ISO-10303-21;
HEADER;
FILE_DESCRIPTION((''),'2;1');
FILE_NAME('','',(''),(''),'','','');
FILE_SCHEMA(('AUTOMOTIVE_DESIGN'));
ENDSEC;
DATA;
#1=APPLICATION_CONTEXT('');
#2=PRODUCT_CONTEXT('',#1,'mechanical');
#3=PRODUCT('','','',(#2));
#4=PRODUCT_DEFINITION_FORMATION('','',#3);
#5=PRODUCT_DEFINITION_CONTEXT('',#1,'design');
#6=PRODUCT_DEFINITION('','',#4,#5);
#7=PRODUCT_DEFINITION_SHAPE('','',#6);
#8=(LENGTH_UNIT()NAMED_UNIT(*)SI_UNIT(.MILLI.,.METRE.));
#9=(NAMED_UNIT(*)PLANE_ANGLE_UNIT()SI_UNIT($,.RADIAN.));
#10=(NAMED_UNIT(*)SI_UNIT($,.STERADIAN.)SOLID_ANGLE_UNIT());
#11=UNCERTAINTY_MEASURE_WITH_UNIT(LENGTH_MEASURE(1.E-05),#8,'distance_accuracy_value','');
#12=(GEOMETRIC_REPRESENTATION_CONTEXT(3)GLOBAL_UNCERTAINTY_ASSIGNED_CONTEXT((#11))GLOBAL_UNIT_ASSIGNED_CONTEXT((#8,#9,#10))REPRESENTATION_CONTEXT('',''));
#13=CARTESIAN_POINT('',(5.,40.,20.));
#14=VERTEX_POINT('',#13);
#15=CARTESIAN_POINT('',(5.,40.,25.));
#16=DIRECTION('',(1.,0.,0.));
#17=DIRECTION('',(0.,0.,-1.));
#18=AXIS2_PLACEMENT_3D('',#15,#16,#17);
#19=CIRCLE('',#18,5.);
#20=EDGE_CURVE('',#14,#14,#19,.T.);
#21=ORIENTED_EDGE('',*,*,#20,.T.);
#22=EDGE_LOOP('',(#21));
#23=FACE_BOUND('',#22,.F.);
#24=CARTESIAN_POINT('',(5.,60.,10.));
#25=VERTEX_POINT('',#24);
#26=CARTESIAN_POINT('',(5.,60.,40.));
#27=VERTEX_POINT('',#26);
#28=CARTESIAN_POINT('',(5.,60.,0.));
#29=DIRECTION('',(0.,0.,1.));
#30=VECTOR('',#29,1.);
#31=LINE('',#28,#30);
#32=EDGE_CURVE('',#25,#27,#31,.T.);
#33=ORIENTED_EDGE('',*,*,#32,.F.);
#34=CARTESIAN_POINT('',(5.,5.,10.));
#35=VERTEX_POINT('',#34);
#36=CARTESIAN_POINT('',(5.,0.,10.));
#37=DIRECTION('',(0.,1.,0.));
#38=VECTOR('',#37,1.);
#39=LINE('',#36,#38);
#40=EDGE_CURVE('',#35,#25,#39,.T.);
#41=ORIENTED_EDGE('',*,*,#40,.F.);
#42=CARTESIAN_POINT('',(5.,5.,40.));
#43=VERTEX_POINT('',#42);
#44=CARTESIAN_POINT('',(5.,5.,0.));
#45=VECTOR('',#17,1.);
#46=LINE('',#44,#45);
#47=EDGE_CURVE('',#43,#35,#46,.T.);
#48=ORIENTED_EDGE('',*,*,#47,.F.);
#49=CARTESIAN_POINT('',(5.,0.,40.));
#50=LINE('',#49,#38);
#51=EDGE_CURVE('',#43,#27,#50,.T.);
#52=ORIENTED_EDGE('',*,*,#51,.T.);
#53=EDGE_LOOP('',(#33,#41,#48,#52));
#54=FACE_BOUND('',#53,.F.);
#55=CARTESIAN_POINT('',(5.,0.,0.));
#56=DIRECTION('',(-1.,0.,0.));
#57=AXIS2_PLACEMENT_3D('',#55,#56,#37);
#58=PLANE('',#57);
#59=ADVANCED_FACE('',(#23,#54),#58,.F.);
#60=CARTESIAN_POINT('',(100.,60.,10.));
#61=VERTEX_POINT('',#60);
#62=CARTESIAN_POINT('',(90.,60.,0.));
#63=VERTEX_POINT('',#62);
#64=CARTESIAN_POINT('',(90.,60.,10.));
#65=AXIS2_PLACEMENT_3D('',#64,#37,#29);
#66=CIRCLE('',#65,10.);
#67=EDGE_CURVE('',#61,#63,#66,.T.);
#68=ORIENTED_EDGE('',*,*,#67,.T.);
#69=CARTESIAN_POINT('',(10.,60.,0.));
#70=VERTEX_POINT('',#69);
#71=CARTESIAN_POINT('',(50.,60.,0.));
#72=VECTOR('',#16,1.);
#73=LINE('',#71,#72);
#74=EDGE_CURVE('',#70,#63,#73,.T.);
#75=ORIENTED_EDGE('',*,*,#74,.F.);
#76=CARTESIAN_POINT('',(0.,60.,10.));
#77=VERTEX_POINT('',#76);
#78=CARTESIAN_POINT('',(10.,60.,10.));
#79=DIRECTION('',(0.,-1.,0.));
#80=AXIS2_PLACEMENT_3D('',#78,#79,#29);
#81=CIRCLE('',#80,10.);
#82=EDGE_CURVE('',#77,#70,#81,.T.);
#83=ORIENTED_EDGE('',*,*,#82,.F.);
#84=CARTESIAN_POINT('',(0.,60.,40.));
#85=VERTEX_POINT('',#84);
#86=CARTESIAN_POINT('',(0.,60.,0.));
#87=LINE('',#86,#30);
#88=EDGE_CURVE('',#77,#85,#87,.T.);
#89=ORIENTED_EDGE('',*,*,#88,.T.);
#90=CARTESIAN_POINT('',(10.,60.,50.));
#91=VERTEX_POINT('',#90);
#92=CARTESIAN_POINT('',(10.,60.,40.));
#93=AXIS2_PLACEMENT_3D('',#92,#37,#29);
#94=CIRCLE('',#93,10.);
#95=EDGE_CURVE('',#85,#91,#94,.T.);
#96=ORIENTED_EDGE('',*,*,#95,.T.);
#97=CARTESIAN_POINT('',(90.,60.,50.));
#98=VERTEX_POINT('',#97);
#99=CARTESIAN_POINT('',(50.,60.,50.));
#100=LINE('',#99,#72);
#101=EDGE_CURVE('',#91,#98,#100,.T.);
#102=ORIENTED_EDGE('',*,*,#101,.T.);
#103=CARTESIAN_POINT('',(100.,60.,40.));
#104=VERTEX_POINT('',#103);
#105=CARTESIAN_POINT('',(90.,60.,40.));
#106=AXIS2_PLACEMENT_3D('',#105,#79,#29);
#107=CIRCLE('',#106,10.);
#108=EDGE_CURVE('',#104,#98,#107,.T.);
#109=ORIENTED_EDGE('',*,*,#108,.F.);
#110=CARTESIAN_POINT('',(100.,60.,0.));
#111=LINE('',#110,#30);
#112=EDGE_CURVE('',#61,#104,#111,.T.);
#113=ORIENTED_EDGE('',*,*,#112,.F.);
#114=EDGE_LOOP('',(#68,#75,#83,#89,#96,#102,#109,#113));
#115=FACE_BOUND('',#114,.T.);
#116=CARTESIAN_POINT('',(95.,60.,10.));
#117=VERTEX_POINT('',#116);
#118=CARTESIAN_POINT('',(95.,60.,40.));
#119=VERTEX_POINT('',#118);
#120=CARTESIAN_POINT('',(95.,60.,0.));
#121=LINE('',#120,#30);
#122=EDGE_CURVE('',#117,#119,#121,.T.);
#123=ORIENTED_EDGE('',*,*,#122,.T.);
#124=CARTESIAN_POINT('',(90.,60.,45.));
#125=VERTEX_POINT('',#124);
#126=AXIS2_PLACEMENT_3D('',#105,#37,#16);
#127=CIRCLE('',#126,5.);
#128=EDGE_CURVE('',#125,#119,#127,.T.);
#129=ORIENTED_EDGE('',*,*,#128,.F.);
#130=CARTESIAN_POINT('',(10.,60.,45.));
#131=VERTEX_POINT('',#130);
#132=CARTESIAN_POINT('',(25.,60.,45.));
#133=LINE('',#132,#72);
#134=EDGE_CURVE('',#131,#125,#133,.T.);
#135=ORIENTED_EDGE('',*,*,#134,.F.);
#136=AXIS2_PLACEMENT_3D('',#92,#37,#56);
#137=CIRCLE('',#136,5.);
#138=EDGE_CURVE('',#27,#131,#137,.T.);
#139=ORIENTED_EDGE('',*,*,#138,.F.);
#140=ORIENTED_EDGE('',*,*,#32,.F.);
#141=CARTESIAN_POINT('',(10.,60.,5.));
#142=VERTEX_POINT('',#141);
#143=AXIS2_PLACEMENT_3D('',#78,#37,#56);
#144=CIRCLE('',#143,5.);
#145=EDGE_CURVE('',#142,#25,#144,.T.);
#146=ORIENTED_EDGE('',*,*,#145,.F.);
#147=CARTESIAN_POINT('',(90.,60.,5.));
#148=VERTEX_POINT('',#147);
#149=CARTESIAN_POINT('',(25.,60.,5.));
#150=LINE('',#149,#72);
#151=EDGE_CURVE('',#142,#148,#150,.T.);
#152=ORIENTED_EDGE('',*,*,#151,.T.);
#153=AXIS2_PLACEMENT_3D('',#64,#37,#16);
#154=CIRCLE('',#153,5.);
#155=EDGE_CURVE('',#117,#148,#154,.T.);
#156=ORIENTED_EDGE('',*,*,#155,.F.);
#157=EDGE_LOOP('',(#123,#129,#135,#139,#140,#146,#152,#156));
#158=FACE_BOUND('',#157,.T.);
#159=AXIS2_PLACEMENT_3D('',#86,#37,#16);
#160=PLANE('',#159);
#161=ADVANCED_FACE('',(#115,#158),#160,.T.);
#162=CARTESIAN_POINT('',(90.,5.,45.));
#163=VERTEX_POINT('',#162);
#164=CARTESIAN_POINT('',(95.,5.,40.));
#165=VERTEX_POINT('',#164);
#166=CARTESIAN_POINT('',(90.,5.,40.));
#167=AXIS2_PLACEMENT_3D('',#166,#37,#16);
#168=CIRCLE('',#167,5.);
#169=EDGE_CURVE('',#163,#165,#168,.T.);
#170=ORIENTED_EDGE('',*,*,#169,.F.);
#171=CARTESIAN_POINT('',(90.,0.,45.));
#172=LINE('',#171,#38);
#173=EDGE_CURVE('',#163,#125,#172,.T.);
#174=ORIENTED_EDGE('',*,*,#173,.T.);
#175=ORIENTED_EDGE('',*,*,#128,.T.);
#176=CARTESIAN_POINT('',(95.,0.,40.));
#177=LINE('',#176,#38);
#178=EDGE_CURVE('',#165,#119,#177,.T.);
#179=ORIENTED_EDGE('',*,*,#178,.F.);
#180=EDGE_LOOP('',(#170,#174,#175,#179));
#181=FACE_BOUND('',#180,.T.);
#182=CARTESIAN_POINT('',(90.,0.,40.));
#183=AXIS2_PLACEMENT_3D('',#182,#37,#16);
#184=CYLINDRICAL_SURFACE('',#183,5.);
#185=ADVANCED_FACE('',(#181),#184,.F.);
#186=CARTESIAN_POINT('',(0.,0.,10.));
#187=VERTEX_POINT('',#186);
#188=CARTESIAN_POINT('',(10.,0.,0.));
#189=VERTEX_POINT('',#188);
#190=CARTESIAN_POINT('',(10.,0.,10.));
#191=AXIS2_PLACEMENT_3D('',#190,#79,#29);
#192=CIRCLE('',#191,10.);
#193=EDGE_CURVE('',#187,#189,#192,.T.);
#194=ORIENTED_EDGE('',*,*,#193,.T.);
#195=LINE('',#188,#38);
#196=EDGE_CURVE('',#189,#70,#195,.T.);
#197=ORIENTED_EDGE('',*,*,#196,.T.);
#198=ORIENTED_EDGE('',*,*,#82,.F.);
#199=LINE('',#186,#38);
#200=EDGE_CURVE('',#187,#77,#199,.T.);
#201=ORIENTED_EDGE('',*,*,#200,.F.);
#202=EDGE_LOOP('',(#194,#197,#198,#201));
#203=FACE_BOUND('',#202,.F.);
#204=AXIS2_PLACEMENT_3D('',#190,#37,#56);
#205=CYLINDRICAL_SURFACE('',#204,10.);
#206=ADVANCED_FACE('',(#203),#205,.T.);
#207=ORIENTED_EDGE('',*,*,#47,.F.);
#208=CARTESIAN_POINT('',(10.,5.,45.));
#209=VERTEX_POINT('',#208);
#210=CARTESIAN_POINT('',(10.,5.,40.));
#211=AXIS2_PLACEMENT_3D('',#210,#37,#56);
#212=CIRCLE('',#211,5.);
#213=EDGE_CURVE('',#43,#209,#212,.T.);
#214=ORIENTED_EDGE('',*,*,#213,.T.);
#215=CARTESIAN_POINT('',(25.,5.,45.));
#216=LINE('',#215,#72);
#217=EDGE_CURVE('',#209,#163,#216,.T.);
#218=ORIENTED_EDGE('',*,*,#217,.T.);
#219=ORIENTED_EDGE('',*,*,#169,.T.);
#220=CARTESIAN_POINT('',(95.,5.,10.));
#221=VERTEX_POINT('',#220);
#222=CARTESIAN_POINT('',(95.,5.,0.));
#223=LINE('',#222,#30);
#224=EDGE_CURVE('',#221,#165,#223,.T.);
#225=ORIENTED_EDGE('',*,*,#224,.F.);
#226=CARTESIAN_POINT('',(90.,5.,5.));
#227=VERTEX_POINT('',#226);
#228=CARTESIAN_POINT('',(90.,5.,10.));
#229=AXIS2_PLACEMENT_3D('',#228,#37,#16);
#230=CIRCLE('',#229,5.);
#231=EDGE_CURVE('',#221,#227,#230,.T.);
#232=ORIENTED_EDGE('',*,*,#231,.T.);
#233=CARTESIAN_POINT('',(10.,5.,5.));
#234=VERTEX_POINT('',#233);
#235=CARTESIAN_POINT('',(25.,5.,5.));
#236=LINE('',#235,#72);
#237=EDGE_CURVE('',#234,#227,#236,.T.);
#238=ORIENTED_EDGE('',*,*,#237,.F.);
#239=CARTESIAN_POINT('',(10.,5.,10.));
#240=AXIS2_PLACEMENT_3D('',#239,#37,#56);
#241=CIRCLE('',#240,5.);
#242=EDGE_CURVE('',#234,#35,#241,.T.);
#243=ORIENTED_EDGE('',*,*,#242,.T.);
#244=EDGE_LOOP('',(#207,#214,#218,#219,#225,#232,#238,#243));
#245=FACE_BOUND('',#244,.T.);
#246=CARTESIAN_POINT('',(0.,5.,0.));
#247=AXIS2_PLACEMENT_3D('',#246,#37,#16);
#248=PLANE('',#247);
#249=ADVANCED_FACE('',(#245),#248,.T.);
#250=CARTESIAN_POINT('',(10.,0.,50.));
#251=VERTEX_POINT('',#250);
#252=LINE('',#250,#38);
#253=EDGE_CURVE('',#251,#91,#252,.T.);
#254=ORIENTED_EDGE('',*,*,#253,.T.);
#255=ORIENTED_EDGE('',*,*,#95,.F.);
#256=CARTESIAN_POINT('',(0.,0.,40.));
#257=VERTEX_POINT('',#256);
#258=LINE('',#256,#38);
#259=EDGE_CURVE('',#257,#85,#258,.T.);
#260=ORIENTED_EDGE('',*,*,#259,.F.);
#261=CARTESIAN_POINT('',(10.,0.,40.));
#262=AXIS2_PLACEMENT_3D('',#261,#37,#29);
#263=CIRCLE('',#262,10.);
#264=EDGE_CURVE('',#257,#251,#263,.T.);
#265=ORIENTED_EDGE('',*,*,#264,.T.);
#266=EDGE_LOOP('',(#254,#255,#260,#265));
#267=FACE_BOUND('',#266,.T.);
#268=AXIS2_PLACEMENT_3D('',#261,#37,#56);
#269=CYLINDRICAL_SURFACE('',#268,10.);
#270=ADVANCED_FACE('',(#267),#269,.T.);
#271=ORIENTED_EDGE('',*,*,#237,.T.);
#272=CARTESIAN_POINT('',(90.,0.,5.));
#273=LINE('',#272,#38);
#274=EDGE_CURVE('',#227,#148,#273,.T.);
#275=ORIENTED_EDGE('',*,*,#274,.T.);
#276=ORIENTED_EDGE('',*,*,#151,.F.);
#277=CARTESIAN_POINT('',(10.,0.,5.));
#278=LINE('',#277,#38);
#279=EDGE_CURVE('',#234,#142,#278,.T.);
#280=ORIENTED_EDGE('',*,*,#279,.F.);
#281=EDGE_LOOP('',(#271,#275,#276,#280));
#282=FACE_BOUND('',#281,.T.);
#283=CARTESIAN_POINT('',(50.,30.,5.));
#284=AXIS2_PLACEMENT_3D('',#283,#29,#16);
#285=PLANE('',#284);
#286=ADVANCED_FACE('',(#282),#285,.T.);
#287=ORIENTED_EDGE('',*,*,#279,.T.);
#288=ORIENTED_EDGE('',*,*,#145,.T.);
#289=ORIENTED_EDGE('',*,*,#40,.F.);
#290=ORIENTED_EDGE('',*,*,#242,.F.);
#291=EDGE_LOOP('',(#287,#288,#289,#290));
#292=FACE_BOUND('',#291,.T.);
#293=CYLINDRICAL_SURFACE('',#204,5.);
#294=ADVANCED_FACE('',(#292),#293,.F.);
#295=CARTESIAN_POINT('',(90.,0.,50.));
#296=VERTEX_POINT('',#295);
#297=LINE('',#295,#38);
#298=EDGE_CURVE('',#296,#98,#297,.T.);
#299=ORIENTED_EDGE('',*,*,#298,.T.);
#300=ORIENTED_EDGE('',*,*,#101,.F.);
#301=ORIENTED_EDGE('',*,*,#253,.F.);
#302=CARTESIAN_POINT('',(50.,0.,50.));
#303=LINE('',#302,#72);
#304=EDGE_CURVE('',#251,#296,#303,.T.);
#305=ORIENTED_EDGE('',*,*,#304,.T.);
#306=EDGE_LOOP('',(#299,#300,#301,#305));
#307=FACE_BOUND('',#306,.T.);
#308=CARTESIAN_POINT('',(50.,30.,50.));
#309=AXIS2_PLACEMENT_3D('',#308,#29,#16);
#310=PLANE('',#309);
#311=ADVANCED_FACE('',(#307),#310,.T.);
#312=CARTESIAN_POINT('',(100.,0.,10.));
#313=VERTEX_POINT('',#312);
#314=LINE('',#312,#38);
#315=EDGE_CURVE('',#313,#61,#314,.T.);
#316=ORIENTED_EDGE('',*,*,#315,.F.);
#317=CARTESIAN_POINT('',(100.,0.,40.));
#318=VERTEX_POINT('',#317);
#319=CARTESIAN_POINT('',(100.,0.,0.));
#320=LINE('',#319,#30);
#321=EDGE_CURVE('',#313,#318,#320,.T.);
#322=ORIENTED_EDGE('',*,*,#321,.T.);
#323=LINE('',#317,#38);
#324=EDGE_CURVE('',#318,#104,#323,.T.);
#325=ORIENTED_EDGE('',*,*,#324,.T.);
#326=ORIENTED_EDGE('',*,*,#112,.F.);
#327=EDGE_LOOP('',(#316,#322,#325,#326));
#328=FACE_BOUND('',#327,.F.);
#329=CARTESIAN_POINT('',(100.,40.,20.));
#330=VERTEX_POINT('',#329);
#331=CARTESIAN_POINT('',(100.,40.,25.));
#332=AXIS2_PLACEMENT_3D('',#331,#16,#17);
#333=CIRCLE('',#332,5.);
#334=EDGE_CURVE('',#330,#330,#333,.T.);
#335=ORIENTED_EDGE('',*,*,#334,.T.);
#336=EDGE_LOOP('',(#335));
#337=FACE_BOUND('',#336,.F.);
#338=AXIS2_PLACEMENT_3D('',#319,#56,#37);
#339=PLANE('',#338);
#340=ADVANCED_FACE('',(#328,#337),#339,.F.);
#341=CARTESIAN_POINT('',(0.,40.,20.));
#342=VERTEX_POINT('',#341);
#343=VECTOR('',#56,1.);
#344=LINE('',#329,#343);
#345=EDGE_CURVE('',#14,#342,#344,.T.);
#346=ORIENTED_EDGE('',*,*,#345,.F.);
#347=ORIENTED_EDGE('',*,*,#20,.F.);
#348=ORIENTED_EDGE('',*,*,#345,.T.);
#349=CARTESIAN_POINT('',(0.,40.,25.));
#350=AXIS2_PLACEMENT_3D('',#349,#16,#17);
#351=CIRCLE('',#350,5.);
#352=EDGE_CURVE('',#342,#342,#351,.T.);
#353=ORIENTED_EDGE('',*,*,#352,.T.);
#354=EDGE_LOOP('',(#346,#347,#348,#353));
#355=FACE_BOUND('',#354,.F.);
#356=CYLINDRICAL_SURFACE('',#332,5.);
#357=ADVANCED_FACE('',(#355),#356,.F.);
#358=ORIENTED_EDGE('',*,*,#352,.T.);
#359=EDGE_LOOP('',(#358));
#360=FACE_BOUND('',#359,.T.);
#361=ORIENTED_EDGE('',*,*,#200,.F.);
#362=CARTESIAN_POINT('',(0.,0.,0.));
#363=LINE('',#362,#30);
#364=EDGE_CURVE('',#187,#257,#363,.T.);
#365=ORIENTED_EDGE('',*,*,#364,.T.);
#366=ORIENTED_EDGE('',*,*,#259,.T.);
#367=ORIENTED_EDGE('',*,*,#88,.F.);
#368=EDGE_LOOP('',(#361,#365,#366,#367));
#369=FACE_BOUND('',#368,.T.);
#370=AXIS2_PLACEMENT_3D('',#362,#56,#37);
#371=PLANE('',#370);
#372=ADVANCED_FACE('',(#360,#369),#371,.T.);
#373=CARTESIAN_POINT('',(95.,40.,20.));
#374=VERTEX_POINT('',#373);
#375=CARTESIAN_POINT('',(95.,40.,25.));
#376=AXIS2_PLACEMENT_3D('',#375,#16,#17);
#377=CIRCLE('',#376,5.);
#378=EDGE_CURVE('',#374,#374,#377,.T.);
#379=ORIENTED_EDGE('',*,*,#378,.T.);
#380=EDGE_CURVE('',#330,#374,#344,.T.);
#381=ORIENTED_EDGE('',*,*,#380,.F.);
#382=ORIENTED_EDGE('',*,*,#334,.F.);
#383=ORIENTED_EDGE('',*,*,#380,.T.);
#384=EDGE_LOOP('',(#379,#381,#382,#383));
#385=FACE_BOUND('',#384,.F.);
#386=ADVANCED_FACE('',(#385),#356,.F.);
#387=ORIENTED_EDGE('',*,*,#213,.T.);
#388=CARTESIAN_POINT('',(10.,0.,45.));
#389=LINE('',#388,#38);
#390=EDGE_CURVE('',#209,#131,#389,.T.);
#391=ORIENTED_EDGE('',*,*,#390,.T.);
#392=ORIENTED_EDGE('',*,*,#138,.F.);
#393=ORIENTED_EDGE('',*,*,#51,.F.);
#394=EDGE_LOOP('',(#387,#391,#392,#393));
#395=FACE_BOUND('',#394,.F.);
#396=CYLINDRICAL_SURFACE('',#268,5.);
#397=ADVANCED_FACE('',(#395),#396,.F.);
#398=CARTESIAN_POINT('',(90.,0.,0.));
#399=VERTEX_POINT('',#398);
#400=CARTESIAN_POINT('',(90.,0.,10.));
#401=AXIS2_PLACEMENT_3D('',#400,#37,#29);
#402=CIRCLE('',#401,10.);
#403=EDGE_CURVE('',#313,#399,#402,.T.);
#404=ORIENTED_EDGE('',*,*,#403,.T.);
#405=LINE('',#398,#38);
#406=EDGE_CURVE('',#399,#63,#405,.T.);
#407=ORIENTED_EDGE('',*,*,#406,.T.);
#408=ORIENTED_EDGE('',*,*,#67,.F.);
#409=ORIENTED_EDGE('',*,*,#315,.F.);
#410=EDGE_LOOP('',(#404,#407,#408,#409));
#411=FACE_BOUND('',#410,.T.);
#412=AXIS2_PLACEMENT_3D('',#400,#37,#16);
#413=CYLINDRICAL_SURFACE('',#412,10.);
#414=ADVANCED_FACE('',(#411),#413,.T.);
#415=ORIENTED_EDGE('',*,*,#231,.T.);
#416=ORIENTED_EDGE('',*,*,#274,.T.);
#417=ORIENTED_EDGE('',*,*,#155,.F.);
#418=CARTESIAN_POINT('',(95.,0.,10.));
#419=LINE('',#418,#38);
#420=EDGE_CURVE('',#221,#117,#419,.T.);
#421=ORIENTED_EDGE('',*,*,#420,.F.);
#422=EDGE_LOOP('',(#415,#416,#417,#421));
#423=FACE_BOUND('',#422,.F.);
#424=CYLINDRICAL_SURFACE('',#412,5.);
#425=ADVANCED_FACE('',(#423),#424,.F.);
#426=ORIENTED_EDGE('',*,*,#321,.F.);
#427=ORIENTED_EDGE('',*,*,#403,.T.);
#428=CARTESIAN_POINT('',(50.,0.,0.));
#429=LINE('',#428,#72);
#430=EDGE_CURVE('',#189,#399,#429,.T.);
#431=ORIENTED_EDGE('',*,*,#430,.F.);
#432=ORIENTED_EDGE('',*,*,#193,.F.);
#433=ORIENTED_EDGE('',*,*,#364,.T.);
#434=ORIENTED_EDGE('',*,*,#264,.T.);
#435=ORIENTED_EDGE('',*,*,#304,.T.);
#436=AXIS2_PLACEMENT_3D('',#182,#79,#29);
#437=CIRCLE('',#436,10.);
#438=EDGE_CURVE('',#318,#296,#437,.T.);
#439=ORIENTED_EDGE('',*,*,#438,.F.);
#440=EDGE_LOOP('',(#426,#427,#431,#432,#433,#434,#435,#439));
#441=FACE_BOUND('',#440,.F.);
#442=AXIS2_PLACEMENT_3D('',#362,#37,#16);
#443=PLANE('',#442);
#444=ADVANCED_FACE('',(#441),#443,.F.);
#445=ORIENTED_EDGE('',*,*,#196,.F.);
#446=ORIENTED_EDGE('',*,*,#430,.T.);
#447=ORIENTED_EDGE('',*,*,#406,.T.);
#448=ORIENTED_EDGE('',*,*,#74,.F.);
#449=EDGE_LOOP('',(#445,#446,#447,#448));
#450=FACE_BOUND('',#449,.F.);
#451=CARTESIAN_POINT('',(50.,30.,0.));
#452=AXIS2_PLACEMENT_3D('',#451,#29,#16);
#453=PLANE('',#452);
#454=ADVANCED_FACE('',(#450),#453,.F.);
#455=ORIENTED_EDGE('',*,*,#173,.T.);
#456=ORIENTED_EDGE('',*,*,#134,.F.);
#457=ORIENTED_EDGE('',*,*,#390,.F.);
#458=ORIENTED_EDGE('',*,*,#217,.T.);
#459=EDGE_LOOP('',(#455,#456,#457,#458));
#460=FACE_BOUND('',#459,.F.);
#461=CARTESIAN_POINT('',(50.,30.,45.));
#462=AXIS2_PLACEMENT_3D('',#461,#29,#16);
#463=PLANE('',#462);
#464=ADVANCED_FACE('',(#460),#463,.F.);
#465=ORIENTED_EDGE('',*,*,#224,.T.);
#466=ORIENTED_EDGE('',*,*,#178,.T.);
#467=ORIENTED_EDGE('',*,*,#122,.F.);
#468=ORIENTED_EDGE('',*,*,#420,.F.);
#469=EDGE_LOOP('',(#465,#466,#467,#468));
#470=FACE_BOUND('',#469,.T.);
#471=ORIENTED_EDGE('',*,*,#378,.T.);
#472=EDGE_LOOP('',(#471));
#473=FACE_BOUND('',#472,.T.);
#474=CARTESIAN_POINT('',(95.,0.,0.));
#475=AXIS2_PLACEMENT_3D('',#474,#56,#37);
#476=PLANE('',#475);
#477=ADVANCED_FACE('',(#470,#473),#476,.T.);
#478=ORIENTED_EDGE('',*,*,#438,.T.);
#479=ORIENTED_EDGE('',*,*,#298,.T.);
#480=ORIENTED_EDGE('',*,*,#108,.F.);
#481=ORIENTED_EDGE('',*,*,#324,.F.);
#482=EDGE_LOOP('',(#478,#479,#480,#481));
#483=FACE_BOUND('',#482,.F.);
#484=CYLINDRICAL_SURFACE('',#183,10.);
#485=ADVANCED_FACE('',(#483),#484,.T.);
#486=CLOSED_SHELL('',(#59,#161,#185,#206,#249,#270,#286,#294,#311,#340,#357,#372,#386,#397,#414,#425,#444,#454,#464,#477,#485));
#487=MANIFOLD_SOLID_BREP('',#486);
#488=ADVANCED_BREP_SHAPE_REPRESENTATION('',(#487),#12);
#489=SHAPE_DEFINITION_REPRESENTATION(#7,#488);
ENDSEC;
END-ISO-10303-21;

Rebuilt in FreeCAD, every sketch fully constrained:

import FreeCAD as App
import Part
import Sketcher

V = App.Vector


def edges_at(feature, points):
    """Names of the edges that pass closest to the given points."""
    edges = feature.Shape.Edges
    near = lambda p: min(range(len(edges)), key=lambda i: edges[i].distToShape(Part.Vertex(*p))[0])
    return sorted({f"Edge{near(p) + 1}" for p in points})


def faces_at(feature, points):
    """Names of the faces that lie closest to the given points."""
    faces = feature.Shape.Faces
    near = lambda p: min(range(len(faces)), key=lambda i: faces[i].distToShape(Part.Vertex(*p))[0])
    return sorted({f"Face{near(p) + 1}" for p in points})

doc = App.newDocument("Part")
params = doc.addObject("Spreadsheet::Sheet", "Params")
for row, (alias, value) in enumerate([
    ("sketch1_width", "100 mm"),
    ("sketch1_height", "60 mm"),
    ("pad1_length", "50 mm"),
    ("fillet_radius", "10 mm"),
    ("thickness_wall", "5 mm"),
    ("sketch2_diameter", "10 mm"),
], start=1):
    params.set(f"A{row}", alias)
    params.set(f"B{row}", "=" + value)
    params.setAlias(f"B{row}", alias)

body = doc.addObject("PartDesign::Body", "Body")

sketch1 = doc.addObject("Sketcher::SketchObject", "Sketch")
body.addObject(sketch1)
sketch1.AttachmentSupport = (doc.XY_Plane, [""])
sketch1.MapMode = "FlatFace"
sketch1.addGeometry(Part.LineSegment(V(0, 60, 0), V(0, 0, 0)), False)
sketch1.addGeometry(Part.LineSegment(V(0, 0, 0), V(100, 0, 0)), False)
sketch1.addGeometry(Part.LineSegment(V(100, 0, 0), V(100, 60, 0)), False)
sketch1.addGeometry(Part.LineSegment(V(100, 60, 0), V(0, 60, 0)), False)
sketch1.addConstraint(Sketcher.Constraint("Coincident", 0, 2, 1, 1))
sketch1.addConstraint(Sketcher.Constraint("Coincident", 1, 2, 2, 1))
sketch1.addConstraint(Sketcher.Constraint("Coincident", 2, 2, 3, 1))
sketch1.addConstraint(Sketcher.Constraint("Coincident", 3, 2, 0, 1))
sketch1.addConstraint(Sketcher.Constraint("Vertical", 0))
sketch1.addConstraint(Sketcher.Constraint("Horizontal", 1))
sketch1.addConstraint(Sketcher.Constraint("Vertical", 2))
sketch1.addConstraint(Sketcher.Constraint("Horizontal", 3))
sketch1.addConstraint(Sketcher.Constraint("Coincident", 0, 2, -1, 1))
sketch1.addConstraint(Sketcher.Constraint("DistanceX", 1, 1, 1, 2, 100.0))
sketch1.addConstraint(Sketcher.Constraint("DistanceY", 0, 2, 0, 1, 60.0))
sketch1.setExpression("Constraints[9]", "Params.sketch1_width")
sketch1.setExpression("Constraints[10]", "Params.sketch1_height")
pad1 = doc.addObject("PartDesign::Pad", "Pad")
body.addObject(pad1)
pad1.Profile = sketch1
pad1.setExpression("Length", "Params.pad1_length")
doc.recompute()

fillet = doc.addObject("PartDesign::Fillet", "Fillet")
body.addObject(fillet)
fillet.Base = (pad1, edges_at(pad1, [
    (100, 30, 50),
    (0, 30, 50),
    (100, 30, 0),
    (0, 30, 0),
]))
fillet.setExpression("Radius", "Params.fillet_radius")
doc.recompute()

thickness = doc.addObject("PartDesign::Thickness", "Thickness")
body.addObject(thickness)
thickness.Base = (fillet, faces_at(fillet, [(50, 60, 25)]))
thickness.setExpression("Value", "Params.thickness_wall")
thickness.Reversed = True
thickness.Join = "Intersection"

sketch2 = doc.addObject("Sketcher::SketchObject", "Sketch001")
body.addObject(sketch2)
sketch2.AttachmentSupport = (doc.YZ_Plane, [""])
sketch2.MapMode = "FlatFace"
sketch2.AttachmentOffset = App.Placement(V(0, 0, 100), App.Rotation())
sketch2.addGeometry(Part.Circle(V(40, 25, 0), V(0, 0, 1), 5), False)
sketch2.addConstraint(Sketcher.Constraint("Diameter", 0, 10.0))
sketch2.addConstraint(Sketcher.Constraint("DistanceX", -1, 1, 0, 3, 40.0))
sketch2.addConstraint(Sketcher.Constraint("DistanceY", -1, 1, 0, 3, 25.0))
sketch2.setExpression("Constraints[0]", "Params.sketch2_diameter")
pocket1 = doc.addObject("PartDesign::Pocket", "Pocket")
body.addObject(pocket1)
pocket1.Profile = sketch2
pocket1.Type = "ThroughAll"

doc.recompute()
